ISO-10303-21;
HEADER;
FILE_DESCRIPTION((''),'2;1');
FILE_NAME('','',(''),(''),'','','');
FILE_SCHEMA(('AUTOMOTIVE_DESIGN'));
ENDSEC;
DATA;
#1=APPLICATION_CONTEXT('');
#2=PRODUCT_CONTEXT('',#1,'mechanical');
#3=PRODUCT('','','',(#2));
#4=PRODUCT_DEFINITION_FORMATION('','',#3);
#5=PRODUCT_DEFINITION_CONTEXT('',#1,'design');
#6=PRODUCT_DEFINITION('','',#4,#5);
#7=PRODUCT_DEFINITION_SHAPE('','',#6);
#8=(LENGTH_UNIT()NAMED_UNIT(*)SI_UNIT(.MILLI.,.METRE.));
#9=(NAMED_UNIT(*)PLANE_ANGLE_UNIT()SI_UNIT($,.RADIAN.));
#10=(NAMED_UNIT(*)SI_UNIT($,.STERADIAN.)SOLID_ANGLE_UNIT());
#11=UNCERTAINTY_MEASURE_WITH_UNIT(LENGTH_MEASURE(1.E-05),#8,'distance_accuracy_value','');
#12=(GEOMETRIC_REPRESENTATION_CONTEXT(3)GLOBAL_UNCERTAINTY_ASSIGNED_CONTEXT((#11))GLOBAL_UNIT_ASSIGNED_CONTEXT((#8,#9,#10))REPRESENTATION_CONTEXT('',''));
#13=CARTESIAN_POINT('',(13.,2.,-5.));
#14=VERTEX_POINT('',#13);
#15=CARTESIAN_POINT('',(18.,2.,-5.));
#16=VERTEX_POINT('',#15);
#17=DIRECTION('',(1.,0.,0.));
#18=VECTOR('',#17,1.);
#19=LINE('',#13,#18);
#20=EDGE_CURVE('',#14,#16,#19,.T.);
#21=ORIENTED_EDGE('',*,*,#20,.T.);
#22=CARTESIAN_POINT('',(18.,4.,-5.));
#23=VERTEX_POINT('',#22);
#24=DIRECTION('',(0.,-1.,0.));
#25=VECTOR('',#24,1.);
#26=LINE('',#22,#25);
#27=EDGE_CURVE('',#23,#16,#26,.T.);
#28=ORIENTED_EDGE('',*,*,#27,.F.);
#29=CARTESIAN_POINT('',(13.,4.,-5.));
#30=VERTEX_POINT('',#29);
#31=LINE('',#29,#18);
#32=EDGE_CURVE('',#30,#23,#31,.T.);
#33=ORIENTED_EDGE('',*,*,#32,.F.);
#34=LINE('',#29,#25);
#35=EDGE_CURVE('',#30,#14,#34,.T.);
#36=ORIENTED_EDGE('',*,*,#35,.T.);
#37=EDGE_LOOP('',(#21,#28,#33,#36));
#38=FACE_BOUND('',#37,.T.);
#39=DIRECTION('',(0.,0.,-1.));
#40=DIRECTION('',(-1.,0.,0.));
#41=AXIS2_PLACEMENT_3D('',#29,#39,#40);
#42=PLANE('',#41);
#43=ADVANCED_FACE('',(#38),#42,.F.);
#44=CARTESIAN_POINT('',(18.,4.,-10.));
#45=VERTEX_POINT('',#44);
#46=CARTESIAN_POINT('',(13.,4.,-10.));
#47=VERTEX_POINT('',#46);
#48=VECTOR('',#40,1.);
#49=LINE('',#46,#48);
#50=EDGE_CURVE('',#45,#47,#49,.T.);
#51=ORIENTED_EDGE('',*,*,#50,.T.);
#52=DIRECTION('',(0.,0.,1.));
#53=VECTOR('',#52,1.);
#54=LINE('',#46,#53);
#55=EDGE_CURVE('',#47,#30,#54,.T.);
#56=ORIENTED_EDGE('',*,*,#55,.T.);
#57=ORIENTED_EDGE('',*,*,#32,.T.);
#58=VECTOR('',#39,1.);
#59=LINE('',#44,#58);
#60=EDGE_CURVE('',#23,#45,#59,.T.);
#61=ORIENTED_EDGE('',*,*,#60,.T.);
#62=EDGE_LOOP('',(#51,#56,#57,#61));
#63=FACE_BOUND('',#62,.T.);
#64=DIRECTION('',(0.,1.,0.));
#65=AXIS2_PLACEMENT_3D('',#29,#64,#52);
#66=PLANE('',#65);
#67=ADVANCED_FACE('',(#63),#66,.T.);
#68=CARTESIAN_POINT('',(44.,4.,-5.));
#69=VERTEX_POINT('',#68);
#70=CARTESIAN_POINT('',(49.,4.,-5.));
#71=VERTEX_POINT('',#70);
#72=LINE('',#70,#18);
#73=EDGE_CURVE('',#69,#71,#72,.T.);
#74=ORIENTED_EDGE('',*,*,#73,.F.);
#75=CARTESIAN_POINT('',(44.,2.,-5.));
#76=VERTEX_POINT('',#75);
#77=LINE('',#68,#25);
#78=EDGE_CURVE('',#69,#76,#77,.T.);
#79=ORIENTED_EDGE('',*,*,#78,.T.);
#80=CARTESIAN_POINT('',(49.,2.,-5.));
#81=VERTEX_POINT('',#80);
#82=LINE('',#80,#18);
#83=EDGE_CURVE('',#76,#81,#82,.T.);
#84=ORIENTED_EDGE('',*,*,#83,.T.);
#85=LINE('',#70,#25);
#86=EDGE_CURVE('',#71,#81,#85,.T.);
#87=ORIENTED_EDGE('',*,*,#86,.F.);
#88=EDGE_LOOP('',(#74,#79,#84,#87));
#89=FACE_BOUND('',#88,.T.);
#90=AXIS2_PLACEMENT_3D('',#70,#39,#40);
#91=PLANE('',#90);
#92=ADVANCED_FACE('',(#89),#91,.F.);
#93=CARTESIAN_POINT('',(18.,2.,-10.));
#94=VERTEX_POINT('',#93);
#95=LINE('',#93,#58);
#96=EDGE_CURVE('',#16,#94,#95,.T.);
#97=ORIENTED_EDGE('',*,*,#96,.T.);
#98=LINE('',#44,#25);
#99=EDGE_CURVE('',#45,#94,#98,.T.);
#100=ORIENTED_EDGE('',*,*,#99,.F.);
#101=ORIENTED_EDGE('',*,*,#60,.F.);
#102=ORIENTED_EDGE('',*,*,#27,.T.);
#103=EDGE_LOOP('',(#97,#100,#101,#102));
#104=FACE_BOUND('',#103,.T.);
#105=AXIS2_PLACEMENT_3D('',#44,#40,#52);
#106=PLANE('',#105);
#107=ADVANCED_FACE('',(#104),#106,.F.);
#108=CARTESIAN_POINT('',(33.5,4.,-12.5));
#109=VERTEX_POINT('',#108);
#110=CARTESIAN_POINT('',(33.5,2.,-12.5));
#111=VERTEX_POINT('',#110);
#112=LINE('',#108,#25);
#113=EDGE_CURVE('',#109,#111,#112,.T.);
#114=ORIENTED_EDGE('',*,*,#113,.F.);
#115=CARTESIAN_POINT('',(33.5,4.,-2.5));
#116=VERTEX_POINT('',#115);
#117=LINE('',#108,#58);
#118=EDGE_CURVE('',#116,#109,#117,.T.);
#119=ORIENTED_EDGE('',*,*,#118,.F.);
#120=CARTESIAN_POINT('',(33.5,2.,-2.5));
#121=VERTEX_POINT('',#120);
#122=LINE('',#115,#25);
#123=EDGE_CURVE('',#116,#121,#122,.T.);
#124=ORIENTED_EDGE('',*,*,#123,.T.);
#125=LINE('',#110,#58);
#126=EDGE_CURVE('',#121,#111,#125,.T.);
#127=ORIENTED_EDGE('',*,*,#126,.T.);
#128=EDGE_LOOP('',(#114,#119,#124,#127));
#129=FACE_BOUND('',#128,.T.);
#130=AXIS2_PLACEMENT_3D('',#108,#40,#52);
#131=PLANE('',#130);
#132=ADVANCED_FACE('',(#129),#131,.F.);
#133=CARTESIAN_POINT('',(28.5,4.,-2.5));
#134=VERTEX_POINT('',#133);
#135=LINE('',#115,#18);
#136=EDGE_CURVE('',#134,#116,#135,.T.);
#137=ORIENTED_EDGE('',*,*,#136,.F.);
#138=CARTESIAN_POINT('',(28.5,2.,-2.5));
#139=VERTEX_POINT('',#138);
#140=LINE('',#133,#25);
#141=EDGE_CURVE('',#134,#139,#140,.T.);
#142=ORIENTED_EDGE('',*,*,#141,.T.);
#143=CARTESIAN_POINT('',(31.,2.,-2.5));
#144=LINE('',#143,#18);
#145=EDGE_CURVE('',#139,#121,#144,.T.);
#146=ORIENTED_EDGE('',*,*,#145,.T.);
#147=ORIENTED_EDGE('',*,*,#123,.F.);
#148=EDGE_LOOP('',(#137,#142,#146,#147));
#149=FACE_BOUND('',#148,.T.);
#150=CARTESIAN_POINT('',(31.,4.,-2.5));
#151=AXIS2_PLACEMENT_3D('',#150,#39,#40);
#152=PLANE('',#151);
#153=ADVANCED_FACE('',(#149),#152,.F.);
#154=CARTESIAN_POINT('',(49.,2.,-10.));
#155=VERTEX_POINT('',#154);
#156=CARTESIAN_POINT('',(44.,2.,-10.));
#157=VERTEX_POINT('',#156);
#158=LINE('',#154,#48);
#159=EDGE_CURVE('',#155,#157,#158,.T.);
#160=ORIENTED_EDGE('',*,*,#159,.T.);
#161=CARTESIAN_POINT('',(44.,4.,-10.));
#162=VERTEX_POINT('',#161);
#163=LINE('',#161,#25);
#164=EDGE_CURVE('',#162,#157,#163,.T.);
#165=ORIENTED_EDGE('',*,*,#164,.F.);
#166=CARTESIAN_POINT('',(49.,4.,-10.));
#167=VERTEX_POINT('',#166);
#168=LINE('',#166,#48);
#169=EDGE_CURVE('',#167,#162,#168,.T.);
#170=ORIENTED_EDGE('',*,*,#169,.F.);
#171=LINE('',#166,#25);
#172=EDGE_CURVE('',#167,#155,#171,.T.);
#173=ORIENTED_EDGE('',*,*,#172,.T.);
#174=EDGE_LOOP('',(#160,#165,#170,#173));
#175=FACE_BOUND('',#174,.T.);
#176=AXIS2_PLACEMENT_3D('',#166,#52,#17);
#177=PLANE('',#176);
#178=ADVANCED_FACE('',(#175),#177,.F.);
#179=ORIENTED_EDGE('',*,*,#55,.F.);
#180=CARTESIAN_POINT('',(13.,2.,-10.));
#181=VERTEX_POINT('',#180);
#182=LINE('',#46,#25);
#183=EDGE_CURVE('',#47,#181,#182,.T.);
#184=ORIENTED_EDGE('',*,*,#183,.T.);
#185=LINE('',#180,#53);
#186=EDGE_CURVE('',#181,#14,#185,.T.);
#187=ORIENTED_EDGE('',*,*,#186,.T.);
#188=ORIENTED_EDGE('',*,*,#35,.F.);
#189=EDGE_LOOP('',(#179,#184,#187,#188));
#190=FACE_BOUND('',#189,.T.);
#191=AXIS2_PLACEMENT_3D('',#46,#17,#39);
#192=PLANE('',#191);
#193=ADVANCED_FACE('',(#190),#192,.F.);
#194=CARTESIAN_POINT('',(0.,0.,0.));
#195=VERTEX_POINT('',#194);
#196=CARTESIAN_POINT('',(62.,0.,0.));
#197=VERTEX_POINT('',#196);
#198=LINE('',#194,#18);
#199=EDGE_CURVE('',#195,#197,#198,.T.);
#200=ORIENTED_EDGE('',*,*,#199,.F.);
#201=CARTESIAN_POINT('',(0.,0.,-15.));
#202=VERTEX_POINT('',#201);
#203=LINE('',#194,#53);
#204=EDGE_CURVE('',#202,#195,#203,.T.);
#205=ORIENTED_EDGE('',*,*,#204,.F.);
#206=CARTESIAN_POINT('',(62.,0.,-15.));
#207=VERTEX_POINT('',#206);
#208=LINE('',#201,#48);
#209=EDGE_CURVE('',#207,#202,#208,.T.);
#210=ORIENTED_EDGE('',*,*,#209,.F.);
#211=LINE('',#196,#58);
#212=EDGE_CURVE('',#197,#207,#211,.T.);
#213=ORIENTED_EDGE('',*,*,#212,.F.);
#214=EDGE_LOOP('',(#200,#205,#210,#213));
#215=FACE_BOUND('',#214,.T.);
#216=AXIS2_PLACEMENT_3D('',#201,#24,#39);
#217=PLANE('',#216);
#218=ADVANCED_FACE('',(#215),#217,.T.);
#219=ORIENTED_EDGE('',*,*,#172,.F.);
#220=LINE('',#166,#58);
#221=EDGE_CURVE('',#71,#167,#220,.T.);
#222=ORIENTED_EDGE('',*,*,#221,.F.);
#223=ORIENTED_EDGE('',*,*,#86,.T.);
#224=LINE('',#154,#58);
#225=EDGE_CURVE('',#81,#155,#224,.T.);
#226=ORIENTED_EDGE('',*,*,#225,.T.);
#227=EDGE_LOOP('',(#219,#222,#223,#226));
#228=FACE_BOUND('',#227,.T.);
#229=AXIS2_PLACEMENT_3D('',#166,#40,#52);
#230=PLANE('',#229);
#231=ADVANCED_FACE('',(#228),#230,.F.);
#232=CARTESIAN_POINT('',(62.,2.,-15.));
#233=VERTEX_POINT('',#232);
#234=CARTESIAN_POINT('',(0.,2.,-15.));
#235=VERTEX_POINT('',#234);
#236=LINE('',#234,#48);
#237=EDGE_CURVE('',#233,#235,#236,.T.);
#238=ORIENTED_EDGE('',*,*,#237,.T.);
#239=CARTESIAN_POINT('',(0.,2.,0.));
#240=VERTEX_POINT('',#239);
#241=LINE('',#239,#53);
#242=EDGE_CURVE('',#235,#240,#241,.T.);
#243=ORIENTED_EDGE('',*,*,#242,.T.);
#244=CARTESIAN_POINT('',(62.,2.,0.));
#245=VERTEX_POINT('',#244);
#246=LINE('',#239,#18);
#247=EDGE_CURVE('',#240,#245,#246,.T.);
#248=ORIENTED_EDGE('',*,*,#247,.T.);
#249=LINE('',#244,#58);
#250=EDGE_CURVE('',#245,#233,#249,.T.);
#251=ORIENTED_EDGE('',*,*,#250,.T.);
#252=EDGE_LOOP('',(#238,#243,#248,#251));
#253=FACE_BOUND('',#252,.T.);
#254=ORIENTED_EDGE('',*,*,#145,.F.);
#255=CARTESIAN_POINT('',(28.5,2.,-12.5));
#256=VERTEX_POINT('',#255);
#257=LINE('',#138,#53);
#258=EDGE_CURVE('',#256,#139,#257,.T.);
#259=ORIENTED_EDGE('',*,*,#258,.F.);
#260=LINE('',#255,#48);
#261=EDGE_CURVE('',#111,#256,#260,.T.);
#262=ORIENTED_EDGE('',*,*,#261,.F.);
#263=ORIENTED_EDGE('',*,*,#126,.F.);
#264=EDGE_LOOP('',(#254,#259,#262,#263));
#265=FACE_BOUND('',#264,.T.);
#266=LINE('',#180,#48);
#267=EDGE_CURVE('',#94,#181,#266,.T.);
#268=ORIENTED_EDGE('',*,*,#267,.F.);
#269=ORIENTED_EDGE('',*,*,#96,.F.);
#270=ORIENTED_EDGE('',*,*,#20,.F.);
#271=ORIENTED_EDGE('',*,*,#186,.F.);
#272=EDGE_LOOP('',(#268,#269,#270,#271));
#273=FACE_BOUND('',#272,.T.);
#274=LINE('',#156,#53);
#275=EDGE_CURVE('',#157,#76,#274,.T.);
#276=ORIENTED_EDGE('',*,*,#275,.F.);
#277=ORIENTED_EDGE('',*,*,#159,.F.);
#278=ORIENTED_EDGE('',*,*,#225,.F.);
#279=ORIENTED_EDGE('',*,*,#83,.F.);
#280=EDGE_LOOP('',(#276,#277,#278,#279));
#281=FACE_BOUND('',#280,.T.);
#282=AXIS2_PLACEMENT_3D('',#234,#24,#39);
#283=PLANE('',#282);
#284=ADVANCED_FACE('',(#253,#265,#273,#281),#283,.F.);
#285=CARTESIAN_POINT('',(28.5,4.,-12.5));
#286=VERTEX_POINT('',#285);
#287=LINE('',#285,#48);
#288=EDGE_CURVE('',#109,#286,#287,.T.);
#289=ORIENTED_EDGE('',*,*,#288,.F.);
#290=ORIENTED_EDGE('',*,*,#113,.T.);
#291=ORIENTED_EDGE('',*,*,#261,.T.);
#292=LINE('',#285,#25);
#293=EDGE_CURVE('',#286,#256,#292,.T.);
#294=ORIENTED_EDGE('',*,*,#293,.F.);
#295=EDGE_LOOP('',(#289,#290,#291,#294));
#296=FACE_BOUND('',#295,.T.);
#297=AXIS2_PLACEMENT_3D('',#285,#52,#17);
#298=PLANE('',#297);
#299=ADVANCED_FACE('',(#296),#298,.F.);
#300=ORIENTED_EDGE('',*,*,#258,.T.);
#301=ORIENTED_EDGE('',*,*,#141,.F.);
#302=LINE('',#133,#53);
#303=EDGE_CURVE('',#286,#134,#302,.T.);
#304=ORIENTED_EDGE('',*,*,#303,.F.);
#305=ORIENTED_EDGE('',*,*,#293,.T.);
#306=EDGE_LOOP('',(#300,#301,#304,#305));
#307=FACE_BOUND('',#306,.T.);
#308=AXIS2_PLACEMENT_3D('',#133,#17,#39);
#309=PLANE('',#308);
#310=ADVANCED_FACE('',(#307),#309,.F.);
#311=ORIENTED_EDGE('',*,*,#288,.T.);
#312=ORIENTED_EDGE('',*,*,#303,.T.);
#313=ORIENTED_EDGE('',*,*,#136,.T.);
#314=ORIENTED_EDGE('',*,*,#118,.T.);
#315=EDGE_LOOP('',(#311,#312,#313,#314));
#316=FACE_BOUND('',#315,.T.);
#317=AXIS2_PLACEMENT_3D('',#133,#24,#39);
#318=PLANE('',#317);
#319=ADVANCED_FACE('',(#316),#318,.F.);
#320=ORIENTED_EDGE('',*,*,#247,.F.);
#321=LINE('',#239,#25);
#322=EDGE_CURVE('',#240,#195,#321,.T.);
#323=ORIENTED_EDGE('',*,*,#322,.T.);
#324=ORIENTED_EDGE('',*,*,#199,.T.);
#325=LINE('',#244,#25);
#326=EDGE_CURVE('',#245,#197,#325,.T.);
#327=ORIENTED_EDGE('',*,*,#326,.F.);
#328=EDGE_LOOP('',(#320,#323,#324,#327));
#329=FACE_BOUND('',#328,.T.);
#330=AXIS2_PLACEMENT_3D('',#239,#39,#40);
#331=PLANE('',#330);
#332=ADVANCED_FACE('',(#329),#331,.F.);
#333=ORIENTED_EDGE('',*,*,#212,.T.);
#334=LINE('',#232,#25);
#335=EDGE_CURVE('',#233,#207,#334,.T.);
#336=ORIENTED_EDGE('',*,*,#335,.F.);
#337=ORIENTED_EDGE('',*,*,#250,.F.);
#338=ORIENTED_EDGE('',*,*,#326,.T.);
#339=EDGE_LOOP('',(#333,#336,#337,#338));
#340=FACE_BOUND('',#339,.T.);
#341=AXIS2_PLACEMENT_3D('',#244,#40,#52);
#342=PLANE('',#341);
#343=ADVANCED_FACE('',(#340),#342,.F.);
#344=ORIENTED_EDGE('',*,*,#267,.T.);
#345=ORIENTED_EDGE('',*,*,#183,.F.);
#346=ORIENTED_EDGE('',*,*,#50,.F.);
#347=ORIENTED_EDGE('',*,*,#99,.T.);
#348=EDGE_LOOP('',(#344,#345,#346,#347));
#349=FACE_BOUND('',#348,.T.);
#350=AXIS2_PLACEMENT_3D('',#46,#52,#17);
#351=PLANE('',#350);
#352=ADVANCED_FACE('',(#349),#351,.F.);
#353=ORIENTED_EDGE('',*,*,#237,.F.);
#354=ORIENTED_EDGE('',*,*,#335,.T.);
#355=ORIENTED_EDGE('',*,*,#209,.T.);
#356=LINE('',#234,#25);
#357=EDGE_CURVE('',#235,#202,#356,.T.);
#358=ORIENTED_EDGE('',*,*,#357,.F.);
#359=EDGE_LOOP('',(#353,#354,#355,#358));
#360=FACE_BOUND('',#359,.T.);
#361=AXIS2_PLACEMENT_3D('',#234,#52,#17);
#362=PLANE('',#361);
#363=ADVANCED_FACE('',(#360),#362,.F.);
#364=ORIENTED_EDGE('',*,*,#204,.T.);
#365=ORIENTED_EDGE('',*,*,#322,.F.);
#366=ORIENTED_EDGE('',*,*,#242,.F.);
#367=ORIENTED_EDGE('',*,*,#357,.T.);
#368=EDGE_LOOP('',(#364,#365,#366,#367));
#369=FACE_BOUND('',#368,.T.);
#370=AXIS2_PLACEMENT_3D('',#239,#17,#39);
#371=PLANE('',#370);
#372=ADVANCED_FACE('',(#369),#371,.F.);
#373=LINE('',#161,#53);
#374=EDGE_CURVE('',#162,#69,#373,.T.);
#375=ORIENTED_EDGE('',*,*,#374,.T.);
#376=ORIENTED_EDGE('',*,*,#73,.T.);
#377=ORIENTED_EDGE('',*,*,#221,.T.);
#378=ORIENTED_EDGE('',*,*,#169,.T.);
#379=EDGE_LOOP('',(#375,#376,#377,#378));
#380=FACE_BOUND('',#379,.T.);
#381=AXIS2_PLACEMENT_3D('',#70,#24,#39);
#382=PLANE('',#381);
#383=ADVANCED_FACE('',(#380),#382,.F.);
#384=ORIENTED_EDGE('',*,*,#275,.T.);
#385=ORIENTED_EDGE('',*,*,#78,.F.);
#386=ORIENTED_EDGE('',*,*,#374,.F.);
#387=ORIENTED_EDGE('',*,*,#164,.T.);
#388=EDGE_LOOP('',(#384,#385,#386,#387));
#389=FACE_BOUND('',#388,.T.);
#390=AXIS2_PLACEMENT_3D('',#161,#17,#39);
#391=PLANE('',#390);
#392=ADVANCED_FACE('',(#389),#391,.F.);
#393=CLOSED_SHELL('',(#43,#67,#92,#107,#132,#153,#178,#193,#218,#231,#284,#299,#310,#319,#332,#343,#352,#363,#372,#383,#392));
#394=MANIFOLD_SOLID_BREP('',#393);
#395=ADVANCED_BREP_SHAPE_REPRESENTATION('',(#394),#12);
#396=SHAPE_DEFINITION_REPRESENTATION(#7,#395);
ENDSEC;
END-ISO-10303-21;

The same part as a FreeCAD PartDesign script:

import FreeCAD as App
import Part
import Sketcher


def add_polygon(sketch, points):
    """Adds a closed chain of lines whose ends are joined by coincident constraints."""
    first, n = sketch.GeometryCount, len(points)
    for a, b in zip(points, points[1:] + points[:1]):
        sketch.addGeometry(Part.LineSegment(App.Vector(*a, 0), App.Vector(*b, 0)), False)
    for i in range(n):
        sketch.addConstraint(Sketcher.Constraint("Coincident", first + i, 2, first + (i + 1) % n, 1))

doc = App.newDocument("Part")
params = doc.addObject("Spreadsheet::Sheet", "Params")
for row, (alias, value) in enumerate([
    ("sketch1_width", "62 mm"),
    ("sketch1_height", "15 mm"),
    ("pad1_length", "2 mm"),
    ("sketch2_width", "5 mm"),
    ("sketch2_height", "10 mm"),
    ("pad2_length", "2 mm"),
], start=1):
    params.set(f"A{row}", alias)
    params.set(f"B{row}", "=" + value)
    params.setAlias(f"B{row}", alias)

body = doc.addObject("PartDesign::Body", "Body")

# Sketch on XZ plane
sketch1 = doc.addObject("Sketcher::SketchObject", "Sketch")
body.addObject(sketch1)
sketch1.AttachmentSupport = (doc.XZ_Plane, [""])
sketch1.MapMode = "FlatFace"
add_polygon(sketch1, [(0, -15), (0, 0), (62, 0), (62, -15)])  # lines 0-3
sketch1.addConstraint([
    Sketcher.Constraint("Vertical", 0),
    Sketcher.Constraint("Horizontal", 1),
    Sketcher.Constraint("Vertical", 2),
    Sketcher.Constraint("Horizontal", 3),
    Sketcher.Constraint("Coincident", 0, 2, -1, 1),
    Sketcher.Constraint("DistanceX", 1, 1, 1, 2, 62.0),
    Sketcher.Constraint("DistanceY", 0, 1, 0, 2, 15.0),
])
sketch1.setExpression("Constraints[9]", "Params.sketch1_width")
sketch1.setExpression("Constraints[10]", "Params.sketch1_height")
pad1 = doc.addObject("PartDesign::Pad", "Pad")
body.addObject(pad1)
pad1.Profile = sketch1
pad1.setExpression("Length", "Params.pad1_length")
pad1.Reversed = True

# Sketch on XZ plane
sketch2 = doc.addObject("Sketcher::SketchObject", "Sketch001")
body.addObject(sketch2)
sketch2.AttachmentSupport = (doc.XZ_Plane, [""])
sketch2.MapMode = "FlatFace"
sketch2.AttachmentOffset = App.Placement(App.Vector(0, 0, -2), App.Rotation())
add_polygon(sketch2, [(13, -10), (13, -5), (18, -5), (18, -10)])  # lines 0-3
add_polygon(sketch2, [(44, -10), (44, -5), (49, -5), (49, -10)])  # lines 4-7
add_polygon(sketch2, [(28.5, -2.5), (33.5, -2.5), (33.5, -12.5), (28.5, -12.5)])  # lines 8-11
sketch2.addConstraint([
    Sketcher.Constraint("Vertical", 0),
    Sketcher.Constraint("Horizontal", 1),
    Sketcher.Constraint("Vertical", 2),
    Sketcher.Constraint("Horizontal", 3),
    Sketcher.Constraint("Vertical", 4),
    Sketcher.Constraint("Horizontal", 5),
    Sketcher.Constraint("Vertical", 6),
    Sketcher.Constraint("Horizontal", 7),
    Sketcher.Constraint("Horizontal", 8),
    Sketcher.Constraint("Vertical", 9),
    Sketcher.Constraint("Horizontal", 10),
    Sketcher.Constraint("Vertical", 11),
    Sketcher.Constraint("Horizontal", 1, 2, 4, 2),
    Sketcher.Constraint("Horizontal", 3, 2, 6, 2),
    Sketcher.Constraint("Equal", 3, 5),
    Sketcher.Constraint("Equal", 7, 8),
    Sketcher.Constraint("Equal", 10, 0),
    Sketcher.Constraint("DistanceX", 1, 1, 1, 2, 5.0),
    Sketcher.Constraint("DistanceY", 9, 2, 9, 1, 10.0),
    Sketcher.Constraint("DistanceX", -1, 1, 0, 2, 13.0),
    Sketcher.Constraint("DistanceY", 0, 2, -1, 1, 5.0),
    Sketcher.Constraint("DistanceX", -1, 1, 4, 2, 44.0),
    Sketcher.Constraint("DistanceX", -1, 1, 8, 2, 33.5),
    Sketcher.Constraint("DistanceY", 8, 2, -1, 1, 2.5),
])
sketch2.setExpression("Constraints[29]", "Params.sketch2_width")
sketch2.setExpression("Constraints[30]", "Params.sketch2_height")
pad2 = doc.addObject("PartDesign::Pad", "Pad001")
body.addObject(pad2)
pad2.Profile = sketch2
pad2.setExpression("Length", "Params.pad2_length")
pad2.Reversed = True

doc.recompute()
